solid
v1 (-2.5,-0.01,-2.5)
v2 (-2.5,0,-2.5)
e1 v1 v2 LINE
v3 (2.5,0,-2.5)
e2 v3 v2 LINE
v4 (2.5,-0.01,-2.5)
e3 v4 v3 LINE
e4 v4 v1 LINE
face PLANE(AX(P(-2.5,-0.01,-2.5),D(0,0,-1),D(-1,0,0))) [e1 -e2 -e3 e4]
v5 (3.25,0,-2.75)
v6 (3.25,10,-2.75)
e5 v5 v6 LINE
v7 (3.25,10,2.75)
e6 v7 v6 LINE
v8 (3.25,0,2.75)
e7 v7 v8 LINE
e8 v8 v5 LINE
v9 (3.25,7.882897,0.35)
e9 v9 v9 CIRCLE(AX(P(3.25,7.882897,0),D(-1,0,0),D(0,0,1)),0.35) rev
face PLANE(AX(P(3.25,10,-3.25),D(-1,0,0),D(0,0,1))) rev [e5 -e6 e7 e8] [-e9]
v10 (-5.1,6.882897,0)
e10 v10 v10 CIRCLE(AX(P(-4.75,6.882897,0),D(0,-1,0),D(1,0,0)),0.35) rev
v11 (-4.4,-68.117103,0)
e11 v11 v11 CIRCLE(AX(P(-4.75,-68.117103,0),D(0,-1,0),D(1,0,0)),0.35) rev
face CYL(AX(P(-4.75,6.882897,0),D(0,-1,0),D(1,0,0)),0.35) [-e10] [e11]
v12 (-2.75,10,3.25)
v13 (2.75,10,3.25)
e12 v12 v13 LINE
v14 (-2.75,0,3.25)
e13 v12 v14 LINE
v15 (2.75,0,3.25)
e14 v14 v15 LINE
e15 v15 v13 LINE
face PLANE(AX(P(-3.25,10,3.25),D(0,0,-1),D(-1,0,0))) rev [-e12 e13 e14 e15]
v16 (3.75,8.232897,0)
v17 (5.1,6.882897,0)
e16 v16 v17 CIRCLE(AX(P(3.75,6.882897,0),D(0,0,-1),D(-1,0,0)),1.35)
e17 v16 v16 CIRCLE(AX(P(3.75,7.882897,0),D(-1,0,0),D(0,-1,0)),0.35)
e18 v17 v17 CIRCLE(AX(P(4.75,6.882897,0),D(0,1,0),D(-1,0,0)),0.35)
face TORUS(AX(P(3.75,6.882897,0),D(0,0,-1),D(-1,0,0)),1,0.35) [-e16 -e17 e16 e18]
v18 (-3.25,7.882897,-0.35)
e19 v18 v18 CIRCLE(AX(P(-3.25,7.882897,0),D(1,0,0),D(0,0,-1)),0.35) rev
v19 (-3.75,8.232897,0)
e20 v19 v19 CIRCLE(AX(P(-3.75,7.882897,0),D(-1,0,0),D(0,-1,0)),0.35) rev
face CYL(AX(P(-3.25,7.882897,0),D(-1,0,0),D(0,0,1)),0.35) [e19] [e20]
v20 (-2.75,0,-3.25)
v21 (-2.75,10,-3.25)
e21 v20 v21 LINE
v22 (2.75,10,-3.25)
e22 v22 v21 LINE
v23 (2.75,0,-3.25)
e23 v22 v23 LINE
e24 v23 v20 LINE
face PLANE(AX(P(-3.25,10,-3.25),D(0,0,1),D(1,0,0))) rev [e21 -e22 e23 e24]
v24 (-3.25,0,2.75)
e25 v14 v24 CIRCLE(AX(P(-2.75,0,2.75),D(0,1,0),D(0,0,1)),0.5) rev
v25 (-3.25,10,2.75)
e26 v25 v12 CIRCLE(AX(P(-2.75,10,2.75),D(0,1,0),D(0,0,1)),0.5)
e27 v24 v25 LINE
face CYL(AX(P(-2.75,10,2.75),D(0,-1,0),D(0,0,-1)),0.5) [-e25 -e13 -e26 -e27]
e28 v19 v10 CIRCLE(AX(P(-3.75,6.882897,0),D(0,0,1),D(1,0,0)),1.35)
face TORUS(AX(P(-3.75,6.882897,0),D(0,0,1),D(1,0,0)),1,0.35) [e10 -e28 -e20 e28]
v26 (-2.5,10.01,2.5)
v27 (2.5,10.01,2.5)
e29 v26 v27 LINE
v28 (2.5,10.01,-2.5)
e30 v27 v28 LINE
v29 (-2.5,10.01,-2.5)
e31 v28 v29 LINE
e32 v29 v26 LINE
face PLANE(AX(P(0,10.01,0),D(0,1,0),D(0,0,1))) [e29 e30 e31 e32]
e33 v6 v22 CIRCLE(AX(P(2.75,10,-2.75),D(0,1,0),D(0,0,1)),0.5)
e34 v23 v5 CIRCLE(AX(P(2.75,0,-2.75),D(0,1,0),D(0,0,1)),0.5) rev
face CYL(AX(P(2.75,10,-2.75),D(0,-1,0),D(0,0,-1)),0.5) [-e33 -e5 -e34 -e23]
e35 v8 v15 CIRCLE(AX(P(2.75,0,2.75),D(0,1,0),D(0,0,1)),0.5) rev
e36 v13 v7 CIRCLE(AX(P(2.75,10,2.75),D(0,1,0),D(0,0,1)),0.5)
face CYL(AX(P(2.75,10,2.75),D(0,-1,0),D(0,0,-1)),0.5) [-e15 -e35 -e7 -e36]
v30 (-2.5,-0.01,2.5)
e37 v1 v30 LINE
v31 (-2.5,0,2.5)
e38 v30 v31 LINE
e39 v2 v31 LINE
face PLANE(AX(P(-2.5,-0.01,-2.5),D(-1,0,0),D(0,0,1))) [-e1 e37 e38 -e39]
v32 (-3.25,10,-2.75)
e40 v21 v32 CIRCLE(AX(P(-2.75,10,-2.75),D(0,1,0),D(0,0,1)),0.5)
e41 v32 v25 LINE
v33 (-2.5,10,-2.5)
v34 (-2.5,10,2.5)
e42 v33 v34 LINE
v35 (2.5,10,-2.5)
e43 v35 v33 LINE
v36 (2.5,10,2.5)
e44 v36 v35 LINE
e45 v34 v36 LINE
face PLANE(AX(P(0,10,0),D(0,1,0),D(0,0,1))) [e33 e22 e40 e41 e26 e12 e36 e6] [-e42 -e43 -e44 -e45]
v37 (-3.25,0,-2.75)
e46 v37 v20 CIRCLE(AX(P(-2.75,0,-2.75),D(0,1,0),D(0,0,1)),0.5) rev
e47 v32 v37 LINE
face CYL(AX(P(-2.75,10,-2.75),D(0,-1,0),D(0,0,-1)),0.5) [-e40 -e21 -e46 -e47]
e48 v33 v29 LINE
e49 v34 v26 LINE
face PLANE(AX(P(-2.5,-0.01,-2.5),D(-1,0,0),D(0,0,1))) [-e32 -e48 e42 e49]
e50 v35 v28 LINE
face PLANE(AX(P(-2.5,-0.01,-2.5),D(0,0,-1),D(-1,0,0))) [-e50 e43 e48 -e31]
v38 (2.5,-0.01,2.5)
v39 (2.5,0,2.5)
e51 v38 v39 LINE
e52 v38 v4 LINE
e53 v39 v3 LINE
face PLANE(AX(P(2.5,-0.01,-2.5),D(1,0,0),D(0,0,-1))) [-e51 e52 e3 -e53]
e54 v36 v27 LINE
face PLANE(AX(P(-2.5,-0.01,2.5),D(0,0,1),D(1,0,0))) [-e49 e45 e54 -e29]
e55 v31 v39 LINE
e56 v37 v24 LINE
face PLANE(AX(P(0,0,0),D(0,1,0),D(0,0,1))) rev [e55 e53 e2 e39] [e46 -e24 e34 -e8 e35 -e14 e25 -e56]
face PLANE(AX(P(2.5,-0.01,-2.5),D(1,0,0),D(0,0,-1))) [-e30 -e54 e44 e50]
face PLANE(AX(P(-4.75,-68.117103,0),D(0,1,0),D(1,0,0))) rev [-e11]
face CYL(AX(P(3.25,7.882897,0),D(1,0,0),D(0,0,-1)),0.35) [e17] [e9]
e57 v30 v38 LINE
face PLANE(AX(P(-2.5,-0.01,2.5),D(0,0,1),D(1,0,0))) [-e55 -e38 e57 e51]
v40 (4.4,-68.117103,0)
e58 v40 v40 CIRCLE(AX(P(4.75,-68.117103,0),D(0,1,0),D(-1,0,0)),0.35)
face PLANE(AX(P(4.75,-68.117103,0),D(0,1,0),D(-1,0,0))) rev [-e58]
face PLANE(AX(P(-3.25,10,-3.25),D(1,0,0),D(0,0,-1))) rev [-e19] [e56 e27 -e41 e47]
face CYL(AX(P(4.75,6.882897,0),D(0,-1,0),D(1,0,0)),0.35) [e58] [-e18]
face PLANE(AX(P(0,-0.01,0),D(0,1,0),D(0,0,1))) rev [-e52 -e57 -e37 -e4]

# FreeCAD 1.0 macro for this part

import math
import FreeCAD as App
import Part
import Sketcher

V = App.Vector
Q = App.Units.Quantity


def edges_at(feature, points):
    """Names of the edges that pass closest to the given points."""
    edges = feature.Shape.Edges
    near = lambda p: min(range(len(edges)), key=lambda i: edges[i].distToShape(Part.Vertex(*p))[0])
    return sorted({f"Edge{near(p) + 1}" for p in points})

doc = App.newDocument("Part")
body = doc.addObject("PartDesign::Body", "Body")

# Sketch on XZ plane
sketch1 = body.newObject("Sketcher::SketchObject", "Sketch")
sketch1.AttachmentSupport = (doc.getObject("XZ_Plane"), [""])
sketch1.MapMode = "FlatFace"
sketch1.addGeometry([
    Part.LineSegment(V(-3, -3, 0), V(-3, 3, 0)),
    Part.LineSegment(V(-3, 3, 0), V(3, 3, 0)),
    Part.LineSegment(V(3, 3, 0), V(3, -3, 0)),
    Part.LineSegment(V(3, -3, 0), V(-3, -3, 0)),
], False)
sketch1.addConstraint([
    Sketcher.Constraint("Coincident", 0, 2, 1, 1),
    Sketcher.Constraint("Coincident", 1, 2, 2, 1),
    Sketcher.Constraint("Coincident", 2, 2, 3, 1),
    Sketcher.Constraint("Coincident", 3, 2, 0, 1),
    Sketcher.Constraint("Vertical", 0),
    Sketcher.Constraint("Horizontal", 1),
    Sketcher.Constraint("Vertical", 2),
    Sketcher.Constraint("Horizontal", 3),
    Sketcher.Constraint("Symmetric", 0, 2, 2, 2, -1, 1),
    Sketcher.Constraint("Equal", 3, 0),
    Sketcher.Constraint("DistanceX", 1, 1, 1, 2, Q("6.5 mm")),
])
pad1 = body.newObject("PartDesign::Pad", "Pad")
pad1.Profile = sketch1
pad1.Length = 10
pad1.Reversed = True

# Sketch on XZ plane
sketch2 = body.newObject("Sketcher::SketchObject", "Sketch001")
sketch2.AttachmentSupport = (doc.getObject("XZ_Plane"), [""])
sketch2.MapMode = "FlatFace"
sketch2.addGeometry([
    Part.LineSegment(V(-2, -2, 0), V(-2, 2, 0)),
    Part.LineSegment(V(-2, 2, 0), V(2, 2, 0)),
    Part.LineSegment(V(2, 2, 0), V(2, -2, 0)),
    Part.LineSegment(V(2, -2, 0), V(-2, -2, 0)),
], False)
sketch2.addConstraint([
    Sketcher.Constraint("Coincident", 0, 2, 1, 1),
    Sketcher.Constraint("Coincident", 1, 2, 2, 1),
    Sketcher.Constraint("Coincident", 2, 2, 3, 1),
    Sketcher.Constraint("Coincident", 3, 2, 0, 1),
    Sketcher.Constraint("Vertical", 0),
    Sketcher.Constraint("Horizontal", 1),
    Sketcher.Constraint("Vertical", 2),
    Sketcher.Constraint("Horizontal", 3),
    Sketcher.Constraint("Symmetric", 0, 2, 2, 2, -1, 1),
    Sketcher.Constraint("Equal", 3, 0),
    Sketcher.Constraint("DistanceX", 1, 1, 1, 2, Q("5 mm")),
])
pad2 = body.newObject("PartDesign::Pad", "Pad001")
pad2.Profile = sketch2
pad2.Type = "TwoLengths"
pad2.Length = 10.01
pad2.Length2 = 0.01
pad2.Reversed = True

# Sketch on YZ plane
sketch3 = body.newObject("Sketcher::SketchObject", "Sketch002")
sketch3.AttachmentSupport = (doc.getObject("YZ_Plane"), [""])
sketch3.MapMode = "FlatFace"
sketch3.AttachmentOffset = App.Placement(V(0, 0, 3.2), App.Rotation())
sketch3.addGeometry(Part.Circle(V(7.88, 0, 0), V(0, 0, 1), 0.35), False)
sketch3.addConstraint([
    Sketcher.Constraint("PointOnObject", 0, 3, -1),
    Sketcher.Constraint("Diameter", 0, Q("0.7 mm")),
    Sketcher.Constraint("DistanceX", -1, 1, 0, 3, Q("7.882897 mm")),
])

# Sketch on XY plane
sketch4 = body.newObject("Sketcher::SketchObject", "Sketch003")
sketch4.AttachmentSupport = (doc.getObject("XY_Plane"), [""])
sketch4.MapMode = "FlatFace"
sketch4.addGeometry([
    Part.LineSegment(V(3.2, 7.9, 0), V(3.8, 7.9, 0)),
    Part.ArcOfCircle(Part.Circle(V(3.7, 6.9, 0), V(0, 0, 1), 1), math.radians(0), math.radians(90)),
    Part.LineSegment(V(4.8, 6.9, 0), V(4.8, -68.1, 0)),
], False)
sketch4.addConstraint([
    Sketcher.Constraint("Tangent", 0, 2, 1, 2),
    Sketcher.Constraint("Tangent", 1, 1, 2, 1),
    Sketcher.Constraint("Horizontal", 0),
    Sketcher.Constraint("Vertical", 2),
    Sketcher.Constraint("Radius", 1, Q("1 mm")),
    Sketcher.Constraint("DistanceY", 2, 2, 2, 1, Q("75 mm")),
    Sketcher.Constraint("DistanceX", 0, 1, 0, 2, Q("0.55 mm")),
    Sketcher.Constraint("DistanceX", -1, 1, 0, 1, Q("3.2 mm")),
    Sketcher.Constraint("DistanceY", -1, 1, 1, 3, Q("6.882897 mm")),
])
doc.recompute()

additivepipe = body.newObject("PartDesign::AdditivePipe", "AdditivePipe")
additivepipe.Profile = sketch3
additivepipe.Spine = (sketch4, ["Edge1", "Edge2", "Edge3"])
doc.recompute()

mirrored = body.newObject("PartDesign::Mirrored", "Mirrored")
mirrored.Originals = [pad1, additivepipe]
mirrored.MirrorPlane = (doc.getObject("YZ_Plane"), [""])
body.Tip = mirrored
doc.recompute()

fillet = body.newObject("PartDesign::Fillet", "Fillet")
fillet.Base = (mirrored, edges_at(mirrored, [
    (3.25, 5, 3.25),
    (-3.25, 5, 3.25),
    (-3.25, 5, -3.25),
    (3.25, 5, -3.25),
]))
fillet.Radius = 0.5

doc.recompute()
